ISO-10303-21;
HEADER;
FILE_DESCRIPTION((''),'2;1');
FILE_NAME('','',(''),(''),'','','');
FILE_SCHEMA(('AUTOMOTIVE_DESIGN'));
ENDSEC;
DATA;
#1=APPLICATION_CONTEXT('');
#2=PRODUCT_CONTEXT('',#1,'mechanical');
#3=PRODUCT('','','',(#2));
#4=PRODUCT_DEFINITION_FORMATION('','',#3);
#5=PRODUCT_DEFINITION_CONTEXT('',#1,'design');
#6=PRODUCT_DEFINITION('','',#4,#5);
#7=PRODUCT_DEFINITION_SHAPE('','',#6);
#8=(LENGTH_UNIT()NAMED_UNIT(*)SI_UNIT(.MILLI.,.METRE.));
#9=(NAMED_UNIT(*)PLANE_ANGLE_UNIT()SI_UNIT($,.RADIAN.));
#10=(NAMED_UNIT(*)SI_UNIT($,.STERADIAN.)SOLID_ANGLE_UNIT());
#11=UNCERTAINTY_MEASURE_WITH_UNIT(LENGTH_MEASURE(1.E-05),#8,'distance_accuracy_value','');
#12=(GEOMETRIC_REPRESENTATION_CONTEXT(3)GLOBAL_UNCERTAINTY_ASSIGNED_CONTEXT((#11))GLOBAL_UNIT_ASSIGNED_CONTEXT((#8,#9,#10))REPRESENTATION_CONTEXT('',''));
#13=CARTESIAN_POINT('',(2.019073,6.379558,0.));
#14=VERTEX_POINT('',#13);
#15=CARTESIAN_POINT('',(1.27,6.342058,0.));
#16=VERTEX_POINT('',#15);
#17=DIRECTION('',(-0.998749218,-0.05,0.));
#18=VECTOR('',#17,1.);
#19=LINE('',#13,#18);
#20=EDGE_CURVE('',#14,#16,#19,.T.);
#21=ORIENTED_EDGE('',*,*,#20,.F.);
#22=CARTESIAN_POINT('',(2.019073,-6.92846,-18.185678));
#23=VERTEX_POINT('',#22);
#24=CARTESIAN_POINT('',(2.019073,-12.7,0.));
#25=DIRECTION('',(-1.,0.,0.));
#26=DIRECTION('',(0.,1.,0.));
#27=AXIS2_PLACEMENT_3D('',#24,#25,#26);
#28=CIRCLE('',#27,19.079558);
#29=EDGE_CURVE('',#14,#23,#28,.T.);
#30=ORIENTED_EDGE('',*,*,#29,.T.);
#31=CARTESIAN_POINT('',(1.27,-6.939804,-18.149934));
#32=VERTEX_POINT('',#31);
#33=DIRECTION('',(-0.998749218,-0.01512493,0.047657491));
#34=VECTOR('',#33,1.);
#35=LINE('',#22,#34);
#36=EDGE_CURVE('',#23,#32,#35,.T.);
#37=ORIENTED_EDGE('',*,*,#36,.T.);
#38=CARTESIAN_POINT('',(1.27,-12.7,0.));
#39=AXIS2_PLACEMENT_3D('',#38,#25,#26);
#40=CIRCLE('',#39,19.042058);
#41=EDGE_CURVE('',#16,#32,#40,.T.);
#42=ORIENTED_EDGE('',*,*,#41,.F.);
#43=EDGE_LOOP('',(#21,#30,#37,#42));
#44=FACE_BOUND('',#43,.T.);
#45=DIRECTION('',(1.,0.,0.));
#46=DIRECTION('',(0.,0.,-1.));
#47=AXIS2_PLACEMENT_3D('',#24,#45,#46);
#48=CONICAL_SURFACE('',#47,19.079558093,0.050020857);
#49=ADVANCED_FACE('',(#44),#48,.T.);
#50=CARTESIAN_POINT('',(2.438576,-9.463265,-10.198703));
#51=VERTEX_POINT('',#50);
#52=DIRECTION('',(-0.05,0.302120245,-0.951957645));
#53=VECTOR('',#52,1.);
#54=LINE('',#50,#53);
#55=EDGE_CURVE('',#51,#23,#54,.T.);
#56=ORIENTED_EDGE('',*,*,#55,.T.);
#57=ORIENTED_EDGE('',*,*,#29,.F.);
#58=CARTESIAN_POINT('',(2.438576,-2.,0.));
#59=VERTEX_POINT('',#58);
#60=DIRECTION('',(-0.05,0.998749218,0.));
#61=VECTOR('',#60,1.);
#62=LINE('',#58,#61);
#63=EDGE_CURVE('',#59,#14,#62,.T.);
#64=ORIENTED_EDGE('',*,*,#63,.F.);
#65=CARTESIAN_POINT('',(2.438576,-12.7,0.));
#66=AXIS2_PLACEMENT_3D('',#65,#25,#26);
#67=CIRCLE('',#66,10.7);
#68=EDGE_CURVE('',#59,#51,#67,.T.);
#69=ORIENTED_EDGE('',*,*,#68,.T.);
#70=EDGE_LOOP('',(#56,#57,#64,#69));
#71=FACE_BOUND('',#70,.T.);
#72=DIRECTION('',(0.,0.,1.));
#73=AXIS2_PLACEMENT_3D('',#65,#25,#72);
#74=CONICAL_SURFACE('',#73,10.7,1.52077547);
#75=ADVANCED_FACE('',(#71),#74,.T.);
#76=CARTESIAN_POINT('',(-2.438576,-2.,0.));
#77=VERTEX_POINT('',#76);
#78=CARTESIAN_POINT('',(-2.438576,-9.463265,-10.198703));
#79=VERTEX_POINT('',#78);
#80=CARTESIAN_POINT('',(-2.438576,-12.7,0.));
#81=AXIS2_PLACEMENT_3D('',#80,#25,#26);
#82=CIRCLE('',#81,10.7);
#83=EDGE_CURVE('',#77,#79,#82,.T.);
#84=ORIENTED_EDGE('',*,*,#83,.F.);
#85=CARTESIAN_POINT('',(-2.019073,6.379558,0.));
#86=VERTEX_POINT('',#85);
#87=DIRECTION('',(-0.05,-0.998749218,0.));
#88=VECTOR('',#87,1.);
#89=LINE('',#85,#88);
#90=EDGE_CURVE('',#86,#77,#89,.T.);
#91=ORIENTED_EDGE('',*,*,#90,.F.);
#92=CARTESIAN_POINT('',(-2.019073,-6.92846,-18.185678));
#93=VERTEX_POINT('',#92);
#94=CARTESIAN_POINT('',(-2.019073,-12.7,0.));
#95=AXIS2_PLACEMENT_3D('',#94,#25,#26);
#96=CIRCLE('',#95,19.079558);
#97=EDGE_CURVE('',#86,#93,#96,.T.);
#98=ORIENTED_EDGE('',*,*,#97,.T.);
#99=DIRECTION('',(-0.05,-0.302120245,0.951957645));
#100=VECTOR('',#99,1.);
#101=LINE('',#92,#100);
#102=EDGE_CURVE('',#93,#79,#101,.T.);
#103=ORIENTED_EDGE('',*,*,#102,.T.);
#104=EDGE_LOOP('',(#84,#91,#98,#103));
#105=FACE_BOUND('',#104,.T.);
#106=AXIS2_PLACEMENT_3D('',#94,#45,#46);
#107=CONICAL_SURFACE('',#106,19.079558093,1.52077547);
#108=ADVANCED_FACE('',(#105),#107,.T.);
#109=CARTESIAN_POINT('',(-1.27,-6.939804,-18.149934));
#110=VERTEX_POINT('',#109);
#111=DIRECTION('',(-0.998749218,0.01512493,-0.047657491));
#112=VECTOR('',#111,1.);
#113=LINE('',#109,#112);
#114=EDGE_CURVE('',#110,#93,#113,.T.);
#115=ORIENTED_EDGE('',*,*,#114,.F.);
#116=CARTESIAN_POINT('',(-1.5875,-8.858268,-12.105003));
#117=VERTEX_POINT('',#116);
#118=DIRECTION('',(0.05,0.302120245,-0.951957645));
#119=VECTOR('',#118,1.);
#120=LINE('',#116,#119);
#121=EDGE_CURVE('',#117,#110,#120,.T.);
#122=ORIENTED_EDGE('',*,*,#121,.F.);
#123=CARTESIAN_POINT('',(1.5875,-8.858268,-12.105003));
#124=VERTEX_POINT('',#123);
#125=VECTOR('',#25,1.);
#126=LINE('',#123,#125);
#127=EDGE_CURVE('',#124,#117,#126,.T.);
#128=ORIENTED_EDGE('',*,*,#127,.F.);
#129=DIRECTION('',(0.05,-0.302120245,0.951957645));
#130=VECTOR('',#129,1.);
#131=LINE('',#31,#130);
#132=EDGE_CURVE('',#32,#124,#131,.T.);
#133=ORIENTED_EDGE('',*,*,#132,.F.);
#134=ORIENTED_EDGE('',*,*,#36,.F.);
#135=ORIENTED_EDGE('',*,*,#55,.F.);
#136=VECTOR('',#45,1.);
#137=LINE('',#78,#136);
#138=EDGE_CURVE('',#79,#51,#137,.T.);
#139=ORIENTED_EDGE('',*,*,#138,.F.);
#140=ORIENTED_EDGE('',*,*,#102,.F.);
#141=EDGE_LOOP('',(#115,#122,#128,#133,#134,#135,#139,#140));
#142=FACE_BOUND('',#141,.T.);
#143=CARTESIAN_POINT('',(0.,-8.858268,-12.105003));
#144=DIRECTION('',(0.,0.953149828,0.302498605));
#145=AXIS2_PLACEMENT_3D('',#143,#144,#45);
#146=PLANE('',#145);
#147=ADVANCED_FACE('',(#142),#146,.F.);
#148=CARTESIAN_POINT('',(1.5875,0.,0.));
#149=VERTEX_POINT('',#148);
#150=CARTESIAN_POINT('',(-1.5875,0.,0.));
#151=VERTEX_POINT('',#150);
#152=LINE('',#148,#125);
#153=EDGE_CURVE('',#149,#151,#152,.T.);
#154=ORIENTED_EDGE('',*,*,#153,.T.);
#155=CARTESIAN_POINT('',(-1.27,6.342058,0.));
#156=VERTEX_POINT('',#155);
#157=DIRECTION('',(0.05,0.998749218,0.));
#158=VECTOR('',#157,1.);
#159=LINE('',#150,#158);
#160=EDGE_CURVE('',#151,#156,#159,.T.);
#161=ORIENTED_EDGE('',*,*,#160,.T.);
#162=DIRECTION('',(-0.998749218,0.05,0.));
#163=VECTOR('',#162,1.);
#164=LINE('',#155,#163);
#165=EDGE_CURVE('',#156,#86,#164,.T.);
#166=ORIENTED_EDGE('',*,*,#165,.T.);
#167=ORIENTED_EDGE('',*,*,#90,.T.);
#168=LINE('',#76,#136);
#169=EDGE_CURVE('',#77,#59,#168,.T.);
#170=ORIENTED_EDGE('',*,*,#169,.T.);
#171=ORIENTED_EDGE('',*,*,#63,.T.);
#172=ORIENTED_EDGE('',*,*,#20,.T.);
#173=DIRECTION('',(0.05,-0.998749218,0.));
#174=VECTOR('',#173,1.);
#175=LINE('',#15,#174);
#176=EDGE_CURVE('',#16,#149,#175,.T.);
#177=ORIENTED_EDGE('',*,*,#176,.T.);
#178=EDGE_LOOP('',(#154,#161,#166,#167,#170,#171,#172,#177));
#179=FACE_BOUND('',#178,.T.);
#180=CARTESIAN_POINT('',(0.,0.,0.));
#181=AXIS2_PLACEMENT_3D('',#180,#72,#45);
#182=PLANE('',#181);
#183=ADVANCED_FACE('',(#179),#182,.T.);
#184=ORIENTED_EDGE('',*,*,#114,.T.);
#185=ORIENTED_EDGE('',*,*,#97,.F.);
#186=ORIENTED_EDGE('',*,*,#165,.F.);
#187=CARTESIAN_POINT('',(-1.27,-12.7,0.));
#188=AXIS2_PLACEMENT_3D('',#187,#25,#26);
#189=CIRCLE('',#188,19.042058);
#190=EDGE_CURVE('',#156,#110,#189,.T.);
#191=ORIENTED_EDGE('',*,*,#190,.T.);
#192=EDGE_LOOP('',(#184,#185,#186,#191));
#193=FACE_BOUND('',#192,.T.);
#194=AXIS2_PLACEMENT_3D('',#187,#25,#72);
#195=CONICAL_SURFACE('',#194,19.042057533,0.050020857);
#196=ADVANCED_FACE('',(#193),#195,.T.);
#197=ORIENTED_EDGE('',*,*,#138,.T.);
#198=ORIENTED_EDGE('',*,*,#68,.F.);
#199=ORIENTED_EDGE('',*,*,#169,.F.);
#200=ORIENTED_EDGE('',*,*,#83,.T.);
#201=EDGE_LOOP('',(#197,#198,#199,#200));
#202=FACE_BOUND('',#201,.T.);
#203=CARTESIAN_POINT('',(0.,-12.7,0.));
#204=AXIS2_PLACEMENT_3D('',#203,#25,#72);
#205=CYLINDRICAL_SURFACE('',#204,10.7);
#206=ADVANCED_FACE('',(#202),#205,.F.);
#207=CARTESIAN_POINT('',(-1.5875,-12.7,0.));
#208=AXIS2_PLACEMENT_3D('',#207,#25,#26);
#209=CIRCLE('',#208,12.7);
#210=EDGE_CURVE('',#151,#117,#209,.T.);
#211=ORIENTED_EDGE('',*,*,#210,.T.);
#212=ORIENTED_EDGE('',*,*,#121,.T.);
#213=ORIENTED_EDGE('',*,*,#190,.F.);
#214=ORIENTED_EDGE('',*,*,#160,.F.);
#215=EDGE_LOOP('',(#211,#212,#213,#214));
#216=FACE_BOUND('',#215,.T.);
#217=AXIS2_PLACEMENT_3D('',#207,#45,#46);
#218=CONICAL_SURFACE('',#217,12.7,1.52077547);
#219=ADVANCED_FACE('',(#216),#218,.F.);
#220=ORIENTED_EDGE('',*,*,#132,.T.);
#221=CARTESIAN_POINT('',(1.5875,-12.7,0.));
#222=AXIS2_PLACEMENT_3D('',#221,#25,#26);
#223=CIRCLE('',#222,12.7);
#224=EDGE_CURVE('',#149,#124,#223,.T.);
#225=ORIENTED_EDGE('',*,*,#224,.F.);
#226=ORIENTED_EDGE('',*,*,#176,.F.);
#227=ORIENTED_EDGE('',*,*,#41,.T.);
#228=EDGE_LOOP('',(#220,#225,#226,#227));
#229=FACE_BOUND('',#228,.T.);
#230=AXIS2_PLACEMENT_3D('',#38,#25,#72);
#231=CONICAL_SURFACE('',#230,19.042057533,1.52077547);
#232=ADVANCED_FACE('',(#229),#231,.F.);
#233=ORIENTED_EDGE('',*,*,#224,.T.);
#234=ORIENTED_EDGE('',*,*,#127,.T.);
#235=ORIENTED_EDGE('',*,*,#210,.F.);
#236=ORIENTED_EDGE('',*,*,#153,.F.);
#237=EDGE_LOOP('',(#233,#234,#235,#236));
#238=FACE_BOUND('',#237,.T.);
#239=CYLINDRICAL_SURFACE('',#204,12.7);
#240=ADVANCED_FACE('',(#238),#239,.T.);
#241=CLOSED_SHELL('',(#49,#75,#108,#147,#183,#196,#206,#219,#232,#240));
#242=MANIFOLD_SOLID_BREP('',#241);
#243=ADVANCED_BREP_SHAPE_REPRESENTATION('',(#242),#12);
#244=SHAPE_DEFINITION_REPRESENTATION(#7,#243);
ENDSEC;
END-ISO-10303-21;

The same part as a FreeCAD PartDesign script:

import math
import FreeCAD as App
import Part
import Sketcher

V = App.Vector
Q = App.Units.Quantity


def add_polygon(sketch, points):
    """Adds a closed chain of lines whose ends are joined by coincident constraints."""
    first, n = sketch.GeometryCount, len(points)
    for a, b in zip(points, points[1:] + points[:1]):
        sketch.addGeometry(Part.LineSegment(App.Vector(*a, 0), App.Vector(*b, 0)), False)
    for i in range(n):
        sketch.addConstraint(Sketcher.Constraint("Coincident", first + i, 2, first + (i + 1) % n, 1))

doc = App.newDocument("Part")
body = doc.addObject("PartDesign::Body", "Body")

sketch1 = doc.addObject("Sketcher::SketchObject", "Sketch")
body.addObject(sketch1)
sketch1.AttachmentSupport = (doc.XY_Plane, [""])
sketch1.MapMode = "FlatFace"
add_polygon(sketch1, [(-2, 6.4), (-2.4, -2), (2.4, -2), (2, 6.4), (1.3, 6.3), (1.6, 0), (-1.6, 0), (-1.3, 6.3)])
sketch1.addConstraint(Sketcher.Constraint("Horizontal", 1))
sketch1.addConstraint(Sketcher.Constraint("Horizontal", 5))
sketch1.addConstraint(Sketcher.Constraint("Symmetric", 4, 2, 5, 2, -1, 1))
sketch1.addConstraint(Sketcher.Constraint("Symmetric", 3, 2, 6, 2, -2))
sketch1.addConstraint(Sketcher.Constraint("Symmetric", 2, 2, 7, 2, -2))
sketch1.addConstraint(Sketcher.Constraint("Perpendicular", 2, 3))
sketch1.addConstraint(Sketcher.Constraint("Perpendicular", 3, 4))
sketch1.addConstraint(Sketcher.Constraint("Parallel", 0, 6))
sketch1.addConstraint(Sketcher.Constraint("DistanceX", 6, 2, 3, 2, Q("0.1 in")))
sketch1.addConstraint(Sketcher.Constraint("Distance", 4, Q("0.25 in")))
sketch1.addConstraint(Sketcher.Constraint("DistanceX", 5, 2, 5, 1, Q("0.125 in")))
sketch1.addConstraint(Sketcher.Constraint("DistanceX", 1, 1, 1, 2, 4.877151))
sketch1.addConstraint(Sketcher.Constraint("DistanceY", 0, 2, -1, 1, 2.0))

sketch2 = doc.addObject("Sketcher::SketchObject", "Sketch001")
body.addObject(sketch2)
sketch2.AttachmentSupport = (doc.YZ_Plane, [""])
sketch2.MapMode = "FlatFace"
sketch2.addGeometry(Part.ArcOfCircle(Part.Circle(V(-13, 0, 0), V(0, 0, 1), 13), math.radians(-72), math.radians(0)), False)
sketch2.addConstraint(Sketcher.Constraint("Coincident", 0, 2, -1, 1))
sketch2.addConstraint(Sketcher.Constraint("PointOnObject", 0, 3, -1))
sketch2.addConstraint(Sketcher.Constraint("Radius", 0, Q("0.5 in")))
sketch2.addConstraint(Sketcher.Constraint("DistanceX", 0, 1, -1, 1, 8.858268))
doc.recompute()

additivepipe = doc.addObject("PartDesign::AdditivePipe", "AdditivePipe")
body.addObject(additivepipe)
additivepipe.Profile = sketch1
additivepipe.Spine = (sketch2, ["Edge1"])

doc.recompute()
